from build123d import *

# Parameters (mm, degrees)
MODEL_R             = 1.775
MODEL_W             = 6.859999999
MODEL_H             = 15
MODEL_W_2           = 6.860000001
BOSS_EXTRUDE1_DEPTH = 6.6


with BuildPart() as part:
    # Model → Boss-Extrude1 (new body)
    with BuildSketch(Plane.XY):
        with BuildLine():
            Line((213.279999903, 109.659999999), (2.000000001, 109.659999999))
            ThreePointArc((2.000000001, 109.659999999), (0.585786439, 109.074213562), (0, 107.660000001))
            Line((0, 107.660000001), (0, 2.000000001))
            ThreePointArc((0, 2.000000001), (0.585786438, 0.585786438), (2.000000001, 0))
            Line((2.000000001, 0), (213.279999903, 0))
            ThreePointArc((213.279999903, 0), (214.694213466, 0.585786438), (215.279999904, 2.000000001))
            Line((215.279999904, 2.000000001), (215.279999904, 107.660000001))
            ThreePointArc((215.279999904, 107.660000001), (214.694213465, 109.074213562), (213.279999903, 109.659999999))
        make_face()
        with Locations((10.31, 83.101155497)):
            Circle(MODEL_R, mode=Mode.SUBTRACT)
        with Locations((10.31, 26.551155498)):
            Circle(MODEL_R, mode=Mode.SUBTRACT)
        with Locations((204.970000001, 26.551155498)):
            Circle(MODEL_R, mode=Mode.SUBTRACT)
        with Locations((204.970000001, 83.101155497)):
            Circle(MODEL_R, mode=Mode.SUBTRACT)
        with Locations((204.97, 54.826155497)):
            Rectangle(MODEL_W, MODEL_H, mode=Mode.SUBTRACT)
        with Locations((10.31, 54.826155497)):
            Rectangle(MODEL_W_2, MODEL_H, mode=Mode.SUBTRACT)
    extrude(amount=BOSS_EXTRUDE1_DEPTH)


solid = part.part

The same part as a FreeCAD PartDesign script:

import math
import FreeCAD as App
import Part
import Sketcher

doc = App.newDocument("Part")
body = doc.addObject("PartDesign::Body", "Body")

sketch1 = body.newObject("Sketcher::SketchObject", "Sketch")
sketch1.AttachmentSupport = (doc.getObject("XY_Plane"), [""])
sketch1.MapMode = "FlatFace"
sketch1.addGeometry(Part.LineSegment(App.Vector(213.3, 109.7, 0), App.Vector(2, 109.7, 0)), False)
sketch1.addGeometry(Part.ArcOfCircle(Part.Circle(App.Vector(2, 107.7, 0), App.Vector(0, 0, 1), 2), math.radians(90), math.radians(180)), False)
sketch1.addGeometry(Part.LineSegment(App.Vector(0, 107.7, 0), App.Vector(0, 2, 0)), False)
sketch1.addGeometry(Part.ArcOfCircle(Part.Circle(App.Vector(2, 2, 0), App.Vector(0, 0, 1), 2), math.radians(180), math.radians(270)), False)
sketch1.addGeometry(Part.LineSegment(App.Vector(2, 0, 0), App.Vector(213.3, 0, 0)), False)
sketch1.addGeometry(Part.ArcOfCircle(Part.Circle(App.Vector(213.3, 2, 0), App.Vector(0, 0, 1), 2), math.radians(-90), math.radians(0)), False)
sketch1.addGeometry(Part.LineSegment(App.Vector(215.3, 2, 0), App.Vector(215.3, 107.7, 0)), False)
sketch1.addGeometry(Part.ArcOfCircle(Part.Circle(App.Vector(213.3, 107.7, 0), App.Vector(0, 0, 1), 2), math.radians(0), math.radians(90)), False)
sketch1.addGeometry(Part.Circle(App.Vector(10.3, 26.6, 0), App.Vector(0, 0, 1), 1.8), False)
sketch1.addGeometry(Part.LineSegment(App.Vector(13.7, 47.3, 0), App.Vector(6.9, 47.3, 0)), False)
sketch1.addGeometry(Part.LineSegment(App.Vector(6.9, 47.3, 0), App.Vector(6.9, 62.3, 0)), False)
sketch1.addGeometry(Part.LineSegment(App.Vector(6.9, 62.3, 0), App.Vector(13.7, 62.3, 0)), False)
sketch1.addGeometry(Part.LineSegment(App.Vector(13.7, 62.3, 0), App.Vector(13.7, 47.3, 0)), False)
sketch1.addGeometry(Part.Circle(App.Vector(205, 26.6, 0), App.Vector(0, 0, 1), 1.8), False)
sketch1.addGeometry(Part.LineSegment(App.Vector(208.4, 47.3, 0), App.Vector(201.5, 47.3, 0)), False)
sketch1.addGeometry(Part.LineSegment(App.Vector(201.5, 47.3, 0), App.Vector(201.5, 62.3, 0)), False)
sketch1.addGeometry(Part.LineSegment(App.Vector(201.5, 62.3, 0), App.Vector(208.4, 62.3, 0)), False)
sketch1.addGeometry(Part.LineSegment(App.Vector(208.4, 62.3, 0), App.Vector(208.4, 47.3, 0)), False)
sketch1.addGeometry(Part.Circle(App.Vector(10.3, 83.1, 0), App.Vector(0, 0, 1), 1.8), False)
sketch1.addGeometry(Part.Circle(App.Vector(205, 83.1, 0), App.Vector(0, 0, 1), 1.8), False)
sketch1.addConstraint(Sketcher.Constraint("Tangent", 0, 2, 1, 1))
sketch1.addConstraint(Sketcher.Constraint("Tangent", 1, 2, 2, 1))
sketch1.addConstraint(Sketcher.Constraint("Tangent", 2, 2, 3, 1))
sketch1.addConstraint(Sketcher.Constraint("Tangent", 3, 2, 4, 1))
sketch1.addConstraint(Sketcher.Constraint("Tangent", 4, 2, 5, 1))
sketch1.addConstraint(Sketcher.Constraint("Tangent", 5, 2, 6, 1))
sketch1.addConstraint(Sketcher.Constraint("Tangent", 6, 2, 7, 1))
sketch1.addConstraint(Sketcher.Constraint("Tangent", 7, 2, 0, 1))
sketch1.addConstraint(Sketcher.Constraint("Coincident", 9, 2, 10, 1))
sketch1.addConstraint(Sketcher.Constraint("Coincident", 10, 2, 11, 1))
sketch1.addConstraint(Sketcher.Constraint("Coincident", 11, 2, 12, 1))
sketch1.addConstraint(Sketcher.Constraint("Coincident", 12, 2, 9, 1))
sketch1.addConstraint(Sketcher.Constraint("Coincident", 14, 2, 15, 1))
sketch1.addConstraint(Sketcher.Constraint("Coincident", 15, 2, 16, 1))
sketch1.addConstraint(Sketcher.Constraint("Coincident", 16, 2, 17, 1))
sketch1.addConstraint(Sketcher.Constraint("Coincident", 17, 2, 14, 1))
sketch1.addConstraint(Sketcher.Constraint("Horizontal", 0))
sketch1.addConstraint(Sketcher.Constraint("Vertical", 2))
sketch1.addConstraint(Sketcher.Constraint("Horizontal", 4))
sketch1.addConstraint(Sketcher.Constraint("Vertical", 6))
sketch1.addConstraint(Sketcher.Constraint("Horizontal", 9))
sketch1.addConstraint(Sketcher.Constraint("Vertical", 10))
sketch1.addConstraint(Sketcher.Constraint("Horizontal", 11))
sketch1.addConstraint(Sketcher.Constraint("Vertical", 12))
sketch1.addConstraint(Sketcher.Constraint("Horizontal", 14))
sketch1.addConstraint(Sketcher.Constraint("Vertical", 15))
sketch1.addConstraint(Sketcher.Constraint("Horizontal", 16))
sketch1.addConstraint(Sketcher.Constraint("Vertical", 17))
sketch1.addConstraint(Sketcher.Constraint("Equal", 1, 3))
sketch1.addConstraint(Sketcher.Constraint("Equal", 3, 5))
sketch1.addConstraint(Sketcher.Constraint("Equal", 5, 7))
sketch1.addConstraint(Sketcher.Constraint("Equal", 8, 13))
sketch1.addConstraint(Sketcher.Constraint("Equal", 13, 18))
sketch1.addConstraint(Sketcher.Constraint("Equal", 18, 19))
sketch1.addConstraint(Sketcher.Constraint("PointOnObject", 1, 2, -2))
sketch1.addConstraint(Sketcher.Constraint("PointOnObject", 3, 2, -1))
sketch1.addConstraint(Sketcher.Constraint("Horizontal", 8, 3, 13, 3))
sketch1.addConstraint(Sketcher.Constraint("Horizontal", 18, 3, 19, 3))
sketch1.addConstraint(Sketcher.Constraint("Horizontal", 12, 2, 14, 2))
sketch1.addConstraint(Sketcher.Constraint("Horizontal", 11, 2, 15, 2))
sketch1.addConstraint(Sketcher.Constraint("Vertical", 8, 3, 18, 3))
sketch1.addConstraint(Sketcher.Constraint("Vertical", 13, 3, 19, 3))
sketch1.addConstraint(Sketcher.Constraint("Equal", 11, 14))
sketch1.addConstraint(Sketcher.Constraint("Radius", 1, 2.0))
sketch1.addConstraint(Sketcher.Constraint("Diameter", 8, 3.55))
sketch1.addConstraint(Sketcher.Constraint("DistanceY", 10, 1, 10, 2, 15.0))
sketch1.addConstraint(Sketcher.Constraint("DistanceX", 0, 2, 0, 1, 211.28))
sketch1.addConstraint(Sketcher.Constraint("DistanceX", 9, 2, 9, 1, 6.86))
sketch1.addConstraint(Sketcher.Constraint("DistanceY", 2, 2, 2, 1, 105.66))
sketch1.addConstraint(Sketcher.Constraint("DistanceX", -1, 1, 16, 2, 208.4))
sketch1.addConstraint(Sketcher.Constraint("DistanceX", -1, 1, 8, 3, 10.31))
sketch1.addConstraint(Sketcher.Constraint("DistanceX", -1, 1, 13, 3, 204.97))
sketch1.addConstraint(Sketcher.Constraint("DistanceX", -1, 1, 9, 2, 6.88))
sketch1.addConstraint(Sketcher.Constraint("DistanceY", 8, 3, 18, 3, 56.55))
sketch1.addConstraint(Sketcher.Constraint("DistanceY", 8, 3, 9, 2, 20.775))
sketch1.addConstraint(Sketcher.Constraint("DistanceY", -1, 1, 8, 3, 26.551155))
pad1 = body.newObject("PartDesign::Pad", "Pad")
pad1.Profile = sketch1
pad1.Length = 6.6

doc.recompute()
